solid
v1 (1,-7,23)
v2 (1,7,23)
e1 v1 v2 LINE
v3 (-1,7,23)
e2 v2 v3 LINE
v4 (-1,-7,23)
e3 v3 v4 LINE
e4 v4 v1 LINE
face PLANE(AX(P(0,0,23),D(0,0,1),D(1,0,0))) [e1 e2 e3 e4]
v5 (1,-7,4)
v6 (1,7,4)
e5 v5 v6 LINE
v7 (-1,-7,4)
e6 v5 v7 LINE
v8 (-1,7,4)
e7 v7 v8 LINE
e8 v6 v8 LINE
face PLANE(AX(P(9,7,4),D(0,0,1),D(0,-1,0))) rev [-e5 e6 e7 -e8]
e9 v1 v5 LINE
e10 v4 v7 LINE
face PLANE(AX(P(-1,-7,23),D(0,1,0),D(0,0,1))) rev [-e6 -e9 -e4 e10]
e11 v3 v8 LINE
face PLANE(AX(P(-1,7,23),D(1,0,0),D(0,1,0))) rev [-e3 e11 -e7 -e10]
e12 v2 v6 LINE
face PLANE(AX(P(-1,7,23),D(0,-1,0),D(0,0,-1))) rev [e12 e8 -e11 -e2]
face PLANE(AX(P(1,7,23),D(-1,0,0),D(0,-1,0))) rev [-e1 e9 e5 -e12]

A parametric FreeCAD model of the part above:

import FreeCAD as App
import Part
import Sketcher

V = App.Vector
Q = App.Units.Quantity

doc = App.newDocument("Part")
body = doc.addObject("PartDesign::Body", "Body")

sketch1 = doc.addObject("Sketcher::SketchObject", "Sketch")
body.addObject(sketch1)
sketch1.AttachmentSupport = (doc.XY_Plane, [""])
sketch1.MapMode = "FlatFace"
sketch1.addGeometry([
    Part.LineSegment(V(-1, 7, 0), V(-1, -7, 0)),
    Part.LineSegment(V(-1, -7, 0), V(1, -7, 0)),
    Part.LineSegment(V(1, -7, 0), V(1, 7, 0)),
    Part.LineSegment(V(1, 7, 0), V(-1, 7, 0)),
], False)
sketch1.addConstraint([
    Sketcher.Constraint("Coincident", 0, 2, 1, 1),
    Sketcher.Constraint("Coincident", 1, 2, 2, 1),
    Sketcher.Constraint("Coincident", 2, 2, 3, 1),
    Sketcher.Constraint("Coincident", 3, 2, 0, 1),
    Sketcher.Constraint("Vertical", 0),
    Sketcher.Constraint("Horizontal", 1),
    Sketcher.Constraint("Vertical", 2),
    Sketcher.Constraint("Horizontal", 3),
    Sketcher.Constraint("Symmetric", 0, 2, 2, 2, -1, 1),
    Sketcher.Constraint("DistanceX", 1, 1, 1, 2, Q("2 mm")),
    Sketcher.Constraint("DistanceY", 0, 2, 0, 1, Q("14 mm")),
])
pad1 = doc.addObject("PartDesign::Pad", "Pad")
body.addObject(pad1)
pad1.Profile = sketch1
pad1.Length = 23

sketch2 = doc.addObject("Sketcher::SketchObject", "Sketch001")
body.addObject(sketch2)
sketch2.AttachmentSupport = (doc.YZ_Plane, [""])
sketch2.MapMode = "FlatFace"
sketch2.AttachmentOffset = App.Placement(V(0, 0, -1), App.Rotation())
sketch2.addGeometry([
    Part.LineSegment(V(7, 0, 0), V(-7, 0, 0)),
    Part.LineSegment(V(-7, 0, 0), V(-7, 2, 0)),
    Part.LineSegment(V(-7, 2, 0), V(7, 2, 0)),
    Part.LineSegment(V(7, 2, 0), V(7, 0, 0)),
], False)
sketch2.addConstraint([
    Sketcher.Constraint("Coincident", 0, 2, 1, 1),
    Sketcher.Constraint("Coincident", 1, 2, 2, 1),
    Sketcher.Constraint("Coincident", 2, 2, 3, 1),
    Sketcher.Constraint("Coincident", 3, 2, 0, 1),
    Sketcher.Constraint("Horizontal", 0),
    Sketcher.Constraint("Vertical", 1),
    Sketcher.Constraint("Horizontal", 2),
    Sketcher.Constraint("Vertical", 3),
    Sketcher.Constraint("Symmetric", 0, 2, 3, 2, -1, 1),
    Sketcher.Constraint("DistanceX", 0, 2, 0, 1, Q("14 mm")),
    Sketcher.Constraint("DistanceY", 1, 1, 1, 2, Q("2 mm")),
])
pocket1 = doc.addObject("PartDesign::Pocket", "Pocket")
body.addObject(pocket1)
pocket1.Profile = sketch2
pocket1.Length = 10
pocket1.Reversed = True

sketch3 = doc.addObject("Sketcher::SketchObject", "Sketch002")
body.addObject(sketch3)
sketch3.AttachmentSupport = (doc.YZ_Plane, [""])
sketch3.MapMode = "FlatFace"
sketch3.AttachmentOffset = App.Placement(V(0, 0, -1), App.Rotation())
sketch3.addGeometry([
    Part.LineSegment(V(-7, 4, 0), V(7, 4, 0)),
    Part.LineSegment(V(7, 4, 0), V(7, 2, 0)),
    Part.LineSegment(V(7, 2, 0), V(-7, 2, 0)),
    Part.LineSegment(V(-7, 2, 0), V(-7, 4, 0)),
], False)
sketch3.addConstraint([
    Sketcher.Constraint("Coincident", 0, 2, 1, 1),
    Sketcher.Constraint("Coincident", 1, 2, 2, 1),
    Sketcher.Constraint("Coincident", 2, 2, 3, 1),
    Sketcher.Constraint("Coincident", 3, 2, 0, 1),
    Sketcher.Constraint("Horizontal", 0),
    Sketcher.Constraint("Vertical", 1),
    Sketcher.Constraint("Horizontal", 2),
    Sketcher.Constraint("Vertical", 3),
    Sketcher.Constraint("DistanceX", 0, 1, 0, 2, Q("14 mm")),
    Sketcher.Constraint("DistanceY", 1, 2, 1, 1, Q("2 mm")),
    Sketcher.Constraint("DistanceX", -1, 1, 0, 2, Q("7 mm")),
    Sketcher.Constraint("DistanceY", -1, 1, 0, 2, Q("4 mm")),
])
pocket2 = doc.addObject("PartDesign::Pocket", "Pocket001")
body.addObject(pocket2)
pocket2.Profile = sketch3
pocket2.Length = 10
pocket2.Reversed = True

doc.recompute()
